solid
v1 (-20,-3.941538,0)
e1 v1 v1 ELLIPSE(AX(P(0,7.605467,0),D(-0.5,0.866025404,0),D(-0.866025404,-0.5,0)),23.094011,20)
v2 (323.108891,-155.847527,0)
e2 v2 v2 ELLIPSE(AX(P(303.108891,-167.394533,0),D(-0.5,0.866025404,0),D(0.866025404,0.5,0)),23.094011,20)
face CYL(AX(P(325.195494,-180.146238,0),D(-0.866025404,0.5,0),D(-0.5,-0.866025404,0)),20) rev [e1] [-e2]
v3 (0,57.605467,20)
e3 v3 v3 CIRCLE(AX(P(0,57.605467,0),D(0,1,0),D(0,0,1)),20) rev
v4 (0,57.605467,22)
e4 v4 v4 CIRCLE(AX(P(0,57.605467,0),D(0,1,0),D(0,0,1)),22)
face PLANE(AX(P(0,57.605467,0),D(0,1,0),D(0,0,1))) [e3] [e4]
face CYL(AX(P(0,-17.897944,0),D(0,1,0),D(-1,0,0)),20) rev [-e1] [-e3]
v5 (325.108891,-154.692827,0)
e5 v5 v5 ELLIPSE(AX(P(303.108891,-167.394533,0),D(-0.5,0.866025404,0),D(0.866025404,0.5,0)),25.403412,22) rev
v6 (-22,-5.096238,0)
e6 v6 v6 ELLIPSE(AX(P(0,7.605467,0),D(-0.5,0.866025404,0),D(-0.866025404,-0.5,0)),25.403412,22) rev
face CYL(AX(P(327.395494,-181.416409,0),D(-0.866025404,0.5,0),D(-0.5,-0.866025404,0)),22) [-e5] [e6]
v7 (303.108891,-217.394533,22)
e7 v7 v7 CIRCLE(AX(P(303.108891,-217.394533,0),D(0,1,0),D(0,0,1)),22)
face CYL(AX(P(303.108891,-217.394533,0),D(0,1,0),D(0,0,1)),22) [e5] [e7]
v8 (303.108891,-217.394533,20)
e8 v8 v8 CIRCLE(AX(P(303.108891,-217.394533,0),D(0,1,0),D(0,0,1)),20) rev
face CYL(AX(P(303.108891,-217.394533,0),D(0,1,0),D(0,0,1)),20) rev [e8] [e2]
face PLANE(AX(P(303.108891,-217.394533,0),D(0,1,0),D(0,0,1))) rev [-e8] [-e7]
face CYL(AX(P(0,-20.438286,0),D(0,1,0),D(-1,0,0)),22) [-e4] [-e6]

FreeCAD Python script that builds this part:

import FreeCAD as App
import Part
import Sketcher
Q = App.Units.Quantity

doc = App.newDocument("Part")
body = doc.addObject("PartDesign::Body", "Body")

# Sketch on XZ plane
sketch1 = body.newObject("Sketcher::SketchObject", "Sketch")
sketch1.AttachmentSupport = (doc.getObject("XZ_Plane"), [""])
sketch1.MapMode = "FlatFace"
sketch1.AttachmentOffset = App.Placement(App.Vector(0, 0, -50), App.Rotation())
sketch1.addGeometry([
    Part.Circle(App.Vector(0, 0, 0), App.Vector(0, 0, 1), 22),
    Part.Circle(App.Vector(0, 0, 0), App.Vector(0, 0, 1), 20),
], False)
sketch1.addConstraint([
    Sketcher.Constraint("Coincident", 0, 3, -1, 1),
    Sketcher.Constraint("Coincident", 1, 3, -1, 1),
    Sketcher.Constraint("Diameter", 0, 44.0),
    Sketcher.Constraint("Diameter", 1, 40.0),
])

# Sketch on XY plane
sketch2 = body.newObject("Sketcher::SketchObject", "Sketch001")
sketch2.AttachmentSupport = (doc.getObject("XY_Plane"), [""])
sketch2.MapMode = "FlatFace"
sketch2.addGeometry([
    Part.LineSegment(App.Vector(0, 58, 0), App.Vector(0, 8, 0)),
    Part.LineSegment(App.Vector(0, 8, 0), App.Vector(303, -167, 0)),
    Part.LineSegment(App.Vector(303, -167, 0), App.Vector(303, -217, 0)),
], False)
sketch2.addConstraint([
    Sketcher.Constraint("Coincident", 0, 2, 1, 1),
    Sketcher.Constraint("Coincident", 1, 2, 2, 1),
    Sketcher.Constraint("Vertical", 0),
    Sketcher.Constraint("Vertical", 2),
    Sketcher.Constraint("PointOnObject", 0, 1, -2),
    Sketcher.Constraint("Equal", 0, 2),
    Sketcher.Constraint("DistanceY", 0, 2, 0, 1, 50.0),
    Sketcher.Constraint("Angle", 1, Q("-30 deg")),
    Sketcher.Constraint("Distance", 1, 350.0),
    Sketcher.Constraint("DistanceY", -1, 1, 0, 1, 57.605467),
])
doc.recompute()

additivepipe = body.newObject("PartDesign::AdditivePipe", "AdditivePipe")
additivepipe.Profile = sketch1
additivepipe.Spine = (sketch2, ["Edge1", "Edge2", "Edge3"])
additivepipe.Transition = "Right corner"

doc.recompute()
